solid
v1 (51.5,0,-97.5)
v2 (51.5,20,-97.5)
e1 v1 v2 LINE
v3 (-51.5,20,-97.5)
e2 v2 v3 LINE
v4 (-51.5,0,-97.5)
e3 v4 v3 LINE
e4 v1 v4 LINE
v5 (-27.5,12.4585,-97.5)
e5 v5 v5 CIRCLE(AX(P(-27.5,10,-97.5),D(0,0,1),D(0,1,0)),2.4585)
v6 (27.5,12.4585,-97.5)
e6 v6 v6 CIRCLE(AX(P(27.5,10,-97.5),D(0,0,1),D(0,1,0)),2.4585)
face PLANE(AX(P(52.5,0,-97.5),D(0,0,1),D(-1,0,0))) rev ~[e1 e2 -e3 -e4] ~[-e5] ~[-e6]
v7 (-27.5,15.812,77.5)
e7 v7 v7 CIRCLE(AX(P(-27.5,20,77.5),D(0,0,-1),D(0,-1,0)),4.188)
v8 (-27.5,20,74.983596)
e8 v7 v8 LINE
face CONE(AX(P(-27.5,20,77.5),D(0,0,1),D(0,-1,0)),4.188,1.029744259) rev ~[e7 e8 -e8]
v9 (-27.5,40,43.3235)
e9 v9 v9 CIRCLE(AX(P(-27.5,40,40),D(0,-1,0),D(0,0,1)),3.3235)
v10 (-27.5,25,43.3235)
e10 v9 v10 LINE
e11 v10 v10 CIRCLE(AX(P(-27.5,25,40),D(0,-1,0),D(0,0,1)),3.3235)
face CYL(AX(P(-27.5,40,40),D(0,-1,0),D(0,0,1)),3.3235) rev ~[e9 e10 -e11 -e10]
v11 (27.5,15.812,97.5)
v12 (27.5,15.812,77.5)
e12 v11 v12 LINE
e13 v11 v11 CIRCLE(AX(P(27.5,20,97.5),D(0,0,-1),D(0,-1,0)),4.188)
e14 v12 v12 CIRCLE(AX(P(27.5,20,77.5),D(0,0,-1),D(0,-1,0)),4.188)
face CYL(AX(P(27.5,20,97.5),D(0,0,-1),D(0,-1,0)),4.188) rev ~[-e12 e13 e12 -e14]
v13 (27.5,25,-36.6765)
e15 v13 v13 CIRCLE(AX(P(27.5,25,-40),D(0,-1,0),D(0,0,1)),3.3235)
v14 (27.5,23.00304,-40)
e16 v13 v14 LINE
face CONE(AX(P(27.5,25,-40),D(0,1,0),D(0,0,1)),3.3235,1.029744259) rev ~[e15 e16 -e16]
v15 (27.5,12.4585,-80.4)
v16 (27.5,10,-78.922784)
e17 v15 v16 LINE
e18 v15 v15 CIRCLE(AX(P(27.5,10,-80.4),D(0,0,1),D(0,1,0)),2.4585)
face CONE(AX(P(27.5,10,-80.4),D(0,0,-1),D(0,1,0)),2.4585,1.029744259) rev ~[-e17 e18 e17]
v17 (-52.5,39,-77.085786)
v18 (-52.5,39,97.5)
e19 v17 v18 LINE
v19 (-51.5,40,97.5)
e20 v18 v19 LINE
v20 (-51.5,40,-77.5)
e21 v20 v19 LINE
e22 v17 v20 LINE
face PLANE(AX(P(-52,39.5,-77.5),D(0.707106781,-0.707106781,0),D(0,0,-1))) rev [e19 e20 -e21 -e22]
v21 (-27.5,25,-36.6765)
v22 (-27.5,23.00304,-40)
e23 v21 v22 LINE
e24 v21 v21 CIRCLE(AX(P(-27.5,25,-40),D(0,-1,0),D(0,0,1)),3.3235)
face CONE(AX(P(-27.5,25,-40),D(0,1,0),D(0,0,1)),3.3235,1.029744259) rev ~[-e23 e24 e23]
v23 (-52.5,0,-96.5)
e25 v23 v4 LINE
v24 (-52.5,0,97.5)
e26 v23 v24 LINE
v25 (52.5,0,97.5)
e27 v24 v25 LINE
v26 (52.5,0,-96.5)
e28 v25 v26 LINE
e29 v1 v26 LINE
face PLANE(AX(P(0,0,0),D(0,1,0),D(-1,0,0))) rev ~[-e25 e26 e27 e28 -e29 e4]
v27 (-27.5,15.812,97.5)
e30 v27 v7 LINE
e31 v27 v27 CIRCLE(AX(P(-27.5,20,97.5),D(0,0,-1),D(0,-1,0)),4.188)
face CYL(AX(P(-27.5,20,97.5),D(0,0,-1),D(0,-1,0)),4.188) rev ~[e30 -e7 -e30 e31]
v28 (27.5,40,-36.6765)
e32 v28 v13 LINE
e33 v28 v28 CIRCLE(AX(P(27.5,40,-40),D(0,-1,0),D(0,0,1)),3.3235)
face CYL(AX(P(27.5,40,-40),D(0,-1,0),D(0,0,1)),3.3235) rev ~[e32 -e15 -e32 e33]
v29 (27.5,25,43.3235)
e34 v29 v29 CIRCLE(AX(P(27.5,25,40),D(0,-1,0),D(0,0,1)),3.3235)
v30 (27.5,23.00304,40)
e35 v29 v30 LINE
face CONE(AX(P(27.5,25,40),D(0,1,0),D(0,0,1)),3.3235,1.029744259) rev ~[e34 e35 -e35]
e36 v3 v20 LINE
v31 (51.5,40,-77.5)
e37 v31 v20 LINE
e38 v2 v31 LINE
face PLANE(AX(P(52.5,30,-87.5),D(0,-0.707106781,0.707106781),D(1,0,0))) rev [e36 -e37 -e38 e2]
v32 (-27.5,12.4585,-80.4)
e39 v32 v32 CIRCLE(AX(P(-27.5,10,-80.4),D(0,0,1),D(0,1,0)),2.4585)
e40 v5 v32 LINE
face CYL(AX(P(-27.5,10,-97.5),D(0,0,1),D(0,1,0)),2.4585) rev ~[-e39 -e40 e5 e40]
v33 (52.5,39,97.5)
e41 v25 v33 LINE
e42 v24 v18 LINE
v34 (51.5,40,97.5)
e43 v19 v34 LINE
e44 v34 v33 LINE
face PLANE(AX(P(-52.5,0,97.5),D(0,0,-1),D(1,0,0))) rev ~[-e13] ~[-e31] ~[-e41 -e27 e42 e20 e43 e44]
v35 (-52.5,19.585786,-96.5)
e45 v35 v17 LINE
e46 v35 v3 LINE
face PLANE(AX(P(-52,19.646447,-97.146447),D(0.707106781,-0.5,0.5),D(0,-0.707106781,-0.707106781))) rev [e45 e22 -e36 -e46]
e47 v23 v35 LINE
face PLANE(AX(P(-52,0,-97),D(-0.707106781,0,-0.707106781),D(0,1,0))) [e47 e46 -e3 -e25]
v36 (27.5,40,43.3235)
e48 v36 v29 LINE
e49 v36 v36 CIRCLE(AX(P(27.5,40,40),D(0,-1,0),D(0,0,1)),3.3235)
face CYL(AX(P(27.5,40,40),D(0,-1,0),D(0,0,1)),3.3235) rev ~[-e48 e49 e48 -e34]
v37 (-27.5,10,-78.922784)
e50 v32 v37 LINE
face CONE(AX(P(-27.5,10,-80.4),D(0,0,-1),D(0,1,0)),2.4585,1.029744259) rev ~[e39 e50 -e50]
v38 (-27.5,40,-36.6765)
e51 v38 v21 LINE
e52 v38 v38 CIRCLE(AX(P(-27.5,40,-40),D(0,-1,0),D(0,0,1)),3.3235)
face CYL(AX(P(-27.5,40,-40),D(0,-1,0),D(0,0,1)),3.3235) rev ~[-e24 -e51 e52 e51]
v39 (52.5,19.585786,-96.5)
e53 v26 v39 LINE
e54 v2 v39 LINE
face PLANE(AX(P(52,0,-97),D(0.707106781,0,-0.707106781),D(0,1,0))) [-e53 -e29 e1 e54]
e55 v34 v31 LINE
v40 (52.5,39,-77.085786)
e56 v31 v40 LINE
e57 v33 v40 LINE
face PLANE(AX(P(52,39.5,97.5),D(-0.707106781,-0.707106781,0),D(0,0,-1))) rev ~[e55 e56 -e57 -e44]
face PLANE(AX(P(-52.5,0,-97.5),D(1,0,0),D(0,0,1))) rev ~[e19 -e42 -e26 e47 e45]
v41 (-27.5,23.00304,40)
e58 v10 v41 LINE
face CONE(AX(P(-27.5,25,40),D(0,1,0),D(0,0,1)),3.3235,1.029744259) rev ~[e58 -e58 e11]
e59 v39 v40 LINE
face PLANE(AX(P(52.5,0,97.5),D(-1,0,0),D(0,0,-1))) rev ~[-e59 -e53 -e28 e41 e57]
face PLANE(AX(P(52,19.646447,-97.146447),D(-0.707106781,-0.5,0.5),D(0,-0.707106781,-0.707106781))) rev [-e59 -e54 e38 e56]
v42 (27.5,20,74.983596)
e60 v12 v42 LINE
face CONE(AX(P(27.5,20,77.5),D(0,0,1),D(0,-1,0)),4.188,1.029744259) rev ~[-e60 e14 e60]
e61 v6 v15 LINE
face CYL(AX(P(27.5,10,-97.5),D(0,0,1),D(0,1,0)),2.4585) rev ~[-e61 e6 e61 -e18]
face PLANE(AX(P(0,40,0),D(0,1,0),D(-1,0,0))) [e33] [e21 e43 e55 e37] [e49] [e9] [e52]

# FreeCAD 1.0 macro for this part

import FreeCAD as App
import Part
import Sketcher
from FreeCAD import Vector


def edges_at(feature, points):
    """Names of the edges that pass closest to the given points."""
    edges = feature.Shape.Edges
    near = lambda p: min(range(len(edges)), key=lambda i: edges[i].distToShape(Part.Vertex(*p))[0])
    return sorted({f"Edge{near(p) + 1}" for p in points})


def add_polygon(sketch, points):
    """Adds a closed chain of lines whose ends are joined by coincident constraints."""
    first, n = sketch.GeometryCount, len(points)
    for a, b in zip(points, points[1:] + points[:1]):
        sketch.addGeometry(Part.LineSegment(App.Vector(*a, 0), App.Vector(*b, 0)), False)
    for i in range(n):
        sketch.addConstraint(Sketcher.Constraint("Coincident", first + i, 2, first + (i + 1) % n, 1))

doc = App.newDocument("Part")
body = doc.addObject("PartDesign::Body", "Body")

# Sketch on XZ plane
sketch1 = body.newObject("Sketcher::SketchObject", "Sketch")
sketch1.AttachmentSupport = (doc.getObject("XZ_Plane"), [""])
sketch1.MapMode = "FlatFace"
add_polygon(sketch1, [(-52, -98), (-52, 98), (52, 98), (52, -98)])  # lines 0-3
sketch1.addConstraint(Sketcher.Constraint("Vertical", 0))
sketch1.addConstraint(Sketcher.Constraint("Horizontal", 1))
sketch1.addConstraint(Sketcher.Constraint("Vertical", 2))
sketch1.addConstraint(Sketcher.Constraint("Horizontal", 3))
sketch1.addConstraint(Sketcher.Constraint("Symmetric", 0, 2, 2, 2, -1, 1))
sketch1.addConstraint(Sketcher.Constraint("DistanceX", 1, 1, 1, 2, 105.0))
sketch1.addConstraint(Sketcher.Constraint("DistanceY", 0, 1, 0, 2, 195.0))
pad1 = body.newObject("PartDesign::Pad", "Pad")
pad1.Profile = sketch1
pad1.Length = 40
pad1.Reversed = True

# Sketch on XY plane
sketch2 = body.newObject("Sketcher::SketchObject", "Sketch001")
sketch2.AttachmentSupport = (doc.getObject("XY_Plane"), [""])
sketch2.MapMode = "FlatFace"
sketch2.AttachmentOffset = App.Placement(Vector(0, 0, 97.5), App.Rotation())
sketch2.addGeometry(Part.Circle(Vector(27.5, 20, 0), Vector(0, 0, 1), 4.2), False)
sketch2.addGeometry(Part.Circle(Vector(-27.5, 20, 0), Vector(0, 0, 1), 4.2), False)
sketch2.addConstraint(Sketcher.Constraint("Equal", 0, 1))
sketch2.addConstraint(Sketcher.Constraint("Symmetric", 0, 3, 1, 3, -2))
sketch2.addConstraint(Sketcher.Constraint("Diameter", 0, 8.376))
sketch2.addConstraint(Sketcher.Constraint("DistanceY", -1, 1, 0, 3, 20.0))
sketch2.addConstraint(Sketcher.Constraint("DistanceX", 1, 3, 0, 3, 55.0))
doc.recompute()
hole = body.newObject("PartDesign::Hole", "Hole")
hole.Profile = sketch2
hole.ThreadType = "None"
hole.Diameter = 8.376
hole.DepthType = "Dimension"
hole.Depth = 20
hole.DrillPoint = "Angled"
hole.DrillPointAngle = 118
doc.recompute()

chamfer = body.newObject("PartDesign::Chamfer", "Chamfer")
chamfer.Base = (hole, edges_at(hole, [(0, 40, -97.5)]))
chamfer.Size = 20

# Sketch on XY plane
sketch3 = body.newObject("Sketcher::SketchObject", "Sketch002")
sketch3.AttachmentSupport = (doc.getObject("XY_Plane"), [""])
sketch3.MapMode = "FlatFace"
sketch3.AttachmentOffset = App.Placement(Vector(0, 0, -97.5), App.Rotation())
sketch3.addGeometry(Part.Circle(Vector(27.5, 10, 0), Vector(0, 0, 1), 2.5), False)
sketch3.addGeometry(Part.Circle(Vector(-27.5, 10, 0), Vector(0, 0, 1), 2.5), False)
sketch3.addConstraint(Sketcher.Constraint("Equal", 0, 1))
sketch3.addConstraint(Sketcher.Constraint("Symmetric", 0, 3, 1, 3, -2))
sketch3.addConstraint(Sketcher.Constraint("Diameter", 0, 4.917))
sketch3.addConstraint(Sketcher.Constraint("DistanceY", -1, 1, 0, 3, 10.0))
sketch3.addConstraint(Sketcher.Constraint("DistanceX", 1, 3, 0, 3, 55.0))
doc.recompute()
hole2 = body.newObject("PartDesign::Hole", "Hole001")
hole2.Profile = sketch3
hole2.ThreadType = "None"
hole2.Diameter = 4.917
hole2.DepthType = "Dimension"
hole2.Depth = 17.1
hole2.DrillPoint = "Angled"
hole2.DrillPointAngle = 118
hole2.Reversed = True

# Sketch on XZ plane
sketch4 = body.newObject("Sketcher::SketchObject", "Sketch003")
sketch4.AttachmentSupport = (doc.getObject("XZ_Plane"), [""])
sketch4.MapMode = "FlatFace"
sketch4.AttachmentOffset = App.Placement(Vector(0, 0, -40), App.Rotation())
sketch4.addGeometry(Part.Circle(Vector(-27.5, -40, 0), Vector(0, 0, 1), 3.3), False)
sketch4.addGeometry(Part.Circle(Vector(27.5, 40, 0), Vector(0, 0, 1), 3.3), False)
sketch4.addGeometry(Part.Circle(Vector(-27.5, 40, 0), Vector(0, 0, 1), 3.3), False)
sketch4.addGeometry(Part.Circle(Vector(27.5, -40, 0), Vector(0, 0, 1), 3.3), False)
sketch4.addConstraint(Sketcher.Constraint("Equal", 0, 1))
sketch4.addConstraint(Sketcher.Constraint("Equal", 1, 2))
sketch4.addConstraint(Sketcher.Constraint("Equal", 2, 3))
sketch4.addConstraint(Sketcher.Constraint("Symmetric", 0, 3, 1, 3, -1, 1))
sketch4.addConstraint(Sketcher.Constraint("Symmetric", 2, 3, 3, 3, -1, 1))
sketch4.addConstraint(Sketcher.Constraint("Symmetric", 1, 3, 2, 3, -2))
sketch4.addConstraint(Sketcher.Constraint("Diameter", 0, 6.647))
sketch4.addConstraint(Sketcher.Constraint("DistanceY", 0, 3, -1, 1, 40.0))
sketch4.addConstraint(Sketcher.Constraint("DistanceX", 0, 3, 1, 3, 55.0))
doc.recompute()
hole3 = body.newObject("PartDesign::Hole", "Hole002")
hole3.Profile = sketch4
hole3.ThreadType = "None"
hole3.Diameter = 6.647
hole3.DepthType = "Dimension"
hole3.Depth = 15
hole3.DrillPoint = "Angled"
hole3.DrillPointAngle = 118
hole3.Reversed = True
doc.recompute()

chamfer2 = body.newObject("PartDesign::Chamfer", "Chamfer001")
chamfer2.Base = (hole3, edges_at(hole3, [
    (52.5, 40, 10),
    (-52.5, 40, 10),
    (-52.5, 30, -87.5),
    (52.5, 30, -87.5),
    (52.5, 10, -97.5),
    (-52.5, 10, -97.5),
]))
chamfer2.Size = 1

doc.recompute()
